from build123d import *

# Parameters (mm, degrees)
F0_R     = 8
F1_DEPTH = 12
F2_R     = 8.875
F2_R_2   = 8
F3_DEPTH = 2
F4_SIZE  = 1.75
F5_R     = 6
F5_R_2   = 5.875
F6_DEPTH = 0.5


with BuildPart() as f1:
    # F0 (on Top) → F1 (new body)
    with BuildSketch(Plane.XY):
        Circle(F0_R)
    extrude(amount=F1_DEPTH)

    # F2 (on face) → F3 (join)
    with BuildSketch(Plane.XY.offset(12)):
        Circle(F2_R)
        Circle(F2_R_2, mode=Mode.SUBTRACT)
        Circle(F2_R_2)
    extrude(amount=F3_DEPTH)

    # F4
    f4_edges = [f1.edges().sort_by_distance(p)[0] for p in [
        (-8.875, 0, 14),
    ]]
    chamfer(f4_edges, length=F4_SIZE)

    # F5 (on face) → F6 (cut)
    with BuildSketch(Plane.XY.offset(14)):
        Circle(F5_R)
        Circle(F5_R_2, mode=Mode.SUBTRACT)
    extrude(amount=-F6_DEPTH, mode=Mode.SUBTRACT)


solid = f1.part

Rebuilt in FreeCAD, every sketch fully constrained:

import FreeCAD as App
import Part
import Sketcher

V = App.Vector


def edges_at(feature, points):
    """Names of the edges that pass closest to the given points."""
    edges = feature.Shape.Edges
    near = lambda p: min(range(len(edges)), key=lambda i: edges[i].distToShape(Part.Vertex(*p))[0])
    return sorted({f"Edge{near(p) + 1}" for p in points})

doc = App.newDocument("Part")
body = doc.addObject("PartDesign::Body", "Body")

# Sketch on XY plane
sketch1 = doc.addObject("Sketcher::SketchObject", "Sketch")
body.addObject(sketch1)
sketch1.AttachmentSupport = (doc.XY_Plane, [""])
sketch1.MapMode = "FlatFace"
sketch1.addGeometry(Part.Circle(V(0, 0, 0), V(0, 0, 1), 8), False)
sketch1.addConstraint([
    Sketcher.Constraint("Coincident", 0, 3, -1, 1),
    Sketcher.Constraint("Diameter", 0, 16.0),
])
pad1 = doc.addObject("PartDesign::Pad", "Pad")
body.addObject(pad1)
pad1.Profile = sketch1
pad1.Length = 12

# Sketch on XY plane
sketch2 = doc.addObject("Sketcher::SketchObject", "Sketch001")
body.addObject(sketch2)
sketch2.AttachmentSupport = (doc.XY_Plane, [""])
sketch2.MapMode = "FlatFace"
sketch2.AttachmentOffset = App.Placement(V(0, 0, 12), App.Rotation())
sketch2.addGeometry(Part.Circle(V(0, 0, 0), V(0, 0, 1), 9), False)
sketch2.addConstraint([
    Sketcher.Constraint("Coincident", 0, 3, -1, 1),
    Sketcher.Constraint("Diameter", 0, 17.75),
])
pad2 = doc.addObject("PartDesign::Pad", "Pad001")
body.addObject(pad2)
pad2.Profile = sketch2
pad2.Length = 2
doc.recompute()

chamfer = doc.addObject("PartDesign::Chamfer", "Chamfer")
body.addObject(chamfer)
chamfer.Base = (pad2, edges_at(pad2, [(-8.875, 0, 14)]))
chamfer.Size = 1.75

# Sketch on XY plane
sketch3 = doc.addObject("Sketcher::SketchObject", "Sketch002")
body.addObject(sketch3)
sketch3.AttachmentSupport = (doc.XY_Plane, [""])
sketch3.MapMode = "FlatFace"
sketch3.AttachmentOffset = App.Placement(V(0, 0, 14), App.Rotation())
sketch3.addGeometry([
    Part.Circle(V(0, 0, 0), V(0, 0, 1), 6),
    Part.Circle(V(0, 0, 0), V(0, 0, 1), 6),
], False)
sketch3.addConstraint([
    Sketcher.Constraint("Coincident", 0, 3, -1, 1),
    Sketcher.Constraint("Coincident", 1, 3, -1, 1),
    Sketcher.Constraint("Diameter", 0, 12.0),
    Sketcher.Constraint("Diameter", 1, 11.75),
])
pocket1 = doc.addObject("PartDesign::Pocket", "Pocket")
body.addObject(pocket1)
pocket1.Profile = sketch3
pocket1.Length = 0.5

doc.recompute()
